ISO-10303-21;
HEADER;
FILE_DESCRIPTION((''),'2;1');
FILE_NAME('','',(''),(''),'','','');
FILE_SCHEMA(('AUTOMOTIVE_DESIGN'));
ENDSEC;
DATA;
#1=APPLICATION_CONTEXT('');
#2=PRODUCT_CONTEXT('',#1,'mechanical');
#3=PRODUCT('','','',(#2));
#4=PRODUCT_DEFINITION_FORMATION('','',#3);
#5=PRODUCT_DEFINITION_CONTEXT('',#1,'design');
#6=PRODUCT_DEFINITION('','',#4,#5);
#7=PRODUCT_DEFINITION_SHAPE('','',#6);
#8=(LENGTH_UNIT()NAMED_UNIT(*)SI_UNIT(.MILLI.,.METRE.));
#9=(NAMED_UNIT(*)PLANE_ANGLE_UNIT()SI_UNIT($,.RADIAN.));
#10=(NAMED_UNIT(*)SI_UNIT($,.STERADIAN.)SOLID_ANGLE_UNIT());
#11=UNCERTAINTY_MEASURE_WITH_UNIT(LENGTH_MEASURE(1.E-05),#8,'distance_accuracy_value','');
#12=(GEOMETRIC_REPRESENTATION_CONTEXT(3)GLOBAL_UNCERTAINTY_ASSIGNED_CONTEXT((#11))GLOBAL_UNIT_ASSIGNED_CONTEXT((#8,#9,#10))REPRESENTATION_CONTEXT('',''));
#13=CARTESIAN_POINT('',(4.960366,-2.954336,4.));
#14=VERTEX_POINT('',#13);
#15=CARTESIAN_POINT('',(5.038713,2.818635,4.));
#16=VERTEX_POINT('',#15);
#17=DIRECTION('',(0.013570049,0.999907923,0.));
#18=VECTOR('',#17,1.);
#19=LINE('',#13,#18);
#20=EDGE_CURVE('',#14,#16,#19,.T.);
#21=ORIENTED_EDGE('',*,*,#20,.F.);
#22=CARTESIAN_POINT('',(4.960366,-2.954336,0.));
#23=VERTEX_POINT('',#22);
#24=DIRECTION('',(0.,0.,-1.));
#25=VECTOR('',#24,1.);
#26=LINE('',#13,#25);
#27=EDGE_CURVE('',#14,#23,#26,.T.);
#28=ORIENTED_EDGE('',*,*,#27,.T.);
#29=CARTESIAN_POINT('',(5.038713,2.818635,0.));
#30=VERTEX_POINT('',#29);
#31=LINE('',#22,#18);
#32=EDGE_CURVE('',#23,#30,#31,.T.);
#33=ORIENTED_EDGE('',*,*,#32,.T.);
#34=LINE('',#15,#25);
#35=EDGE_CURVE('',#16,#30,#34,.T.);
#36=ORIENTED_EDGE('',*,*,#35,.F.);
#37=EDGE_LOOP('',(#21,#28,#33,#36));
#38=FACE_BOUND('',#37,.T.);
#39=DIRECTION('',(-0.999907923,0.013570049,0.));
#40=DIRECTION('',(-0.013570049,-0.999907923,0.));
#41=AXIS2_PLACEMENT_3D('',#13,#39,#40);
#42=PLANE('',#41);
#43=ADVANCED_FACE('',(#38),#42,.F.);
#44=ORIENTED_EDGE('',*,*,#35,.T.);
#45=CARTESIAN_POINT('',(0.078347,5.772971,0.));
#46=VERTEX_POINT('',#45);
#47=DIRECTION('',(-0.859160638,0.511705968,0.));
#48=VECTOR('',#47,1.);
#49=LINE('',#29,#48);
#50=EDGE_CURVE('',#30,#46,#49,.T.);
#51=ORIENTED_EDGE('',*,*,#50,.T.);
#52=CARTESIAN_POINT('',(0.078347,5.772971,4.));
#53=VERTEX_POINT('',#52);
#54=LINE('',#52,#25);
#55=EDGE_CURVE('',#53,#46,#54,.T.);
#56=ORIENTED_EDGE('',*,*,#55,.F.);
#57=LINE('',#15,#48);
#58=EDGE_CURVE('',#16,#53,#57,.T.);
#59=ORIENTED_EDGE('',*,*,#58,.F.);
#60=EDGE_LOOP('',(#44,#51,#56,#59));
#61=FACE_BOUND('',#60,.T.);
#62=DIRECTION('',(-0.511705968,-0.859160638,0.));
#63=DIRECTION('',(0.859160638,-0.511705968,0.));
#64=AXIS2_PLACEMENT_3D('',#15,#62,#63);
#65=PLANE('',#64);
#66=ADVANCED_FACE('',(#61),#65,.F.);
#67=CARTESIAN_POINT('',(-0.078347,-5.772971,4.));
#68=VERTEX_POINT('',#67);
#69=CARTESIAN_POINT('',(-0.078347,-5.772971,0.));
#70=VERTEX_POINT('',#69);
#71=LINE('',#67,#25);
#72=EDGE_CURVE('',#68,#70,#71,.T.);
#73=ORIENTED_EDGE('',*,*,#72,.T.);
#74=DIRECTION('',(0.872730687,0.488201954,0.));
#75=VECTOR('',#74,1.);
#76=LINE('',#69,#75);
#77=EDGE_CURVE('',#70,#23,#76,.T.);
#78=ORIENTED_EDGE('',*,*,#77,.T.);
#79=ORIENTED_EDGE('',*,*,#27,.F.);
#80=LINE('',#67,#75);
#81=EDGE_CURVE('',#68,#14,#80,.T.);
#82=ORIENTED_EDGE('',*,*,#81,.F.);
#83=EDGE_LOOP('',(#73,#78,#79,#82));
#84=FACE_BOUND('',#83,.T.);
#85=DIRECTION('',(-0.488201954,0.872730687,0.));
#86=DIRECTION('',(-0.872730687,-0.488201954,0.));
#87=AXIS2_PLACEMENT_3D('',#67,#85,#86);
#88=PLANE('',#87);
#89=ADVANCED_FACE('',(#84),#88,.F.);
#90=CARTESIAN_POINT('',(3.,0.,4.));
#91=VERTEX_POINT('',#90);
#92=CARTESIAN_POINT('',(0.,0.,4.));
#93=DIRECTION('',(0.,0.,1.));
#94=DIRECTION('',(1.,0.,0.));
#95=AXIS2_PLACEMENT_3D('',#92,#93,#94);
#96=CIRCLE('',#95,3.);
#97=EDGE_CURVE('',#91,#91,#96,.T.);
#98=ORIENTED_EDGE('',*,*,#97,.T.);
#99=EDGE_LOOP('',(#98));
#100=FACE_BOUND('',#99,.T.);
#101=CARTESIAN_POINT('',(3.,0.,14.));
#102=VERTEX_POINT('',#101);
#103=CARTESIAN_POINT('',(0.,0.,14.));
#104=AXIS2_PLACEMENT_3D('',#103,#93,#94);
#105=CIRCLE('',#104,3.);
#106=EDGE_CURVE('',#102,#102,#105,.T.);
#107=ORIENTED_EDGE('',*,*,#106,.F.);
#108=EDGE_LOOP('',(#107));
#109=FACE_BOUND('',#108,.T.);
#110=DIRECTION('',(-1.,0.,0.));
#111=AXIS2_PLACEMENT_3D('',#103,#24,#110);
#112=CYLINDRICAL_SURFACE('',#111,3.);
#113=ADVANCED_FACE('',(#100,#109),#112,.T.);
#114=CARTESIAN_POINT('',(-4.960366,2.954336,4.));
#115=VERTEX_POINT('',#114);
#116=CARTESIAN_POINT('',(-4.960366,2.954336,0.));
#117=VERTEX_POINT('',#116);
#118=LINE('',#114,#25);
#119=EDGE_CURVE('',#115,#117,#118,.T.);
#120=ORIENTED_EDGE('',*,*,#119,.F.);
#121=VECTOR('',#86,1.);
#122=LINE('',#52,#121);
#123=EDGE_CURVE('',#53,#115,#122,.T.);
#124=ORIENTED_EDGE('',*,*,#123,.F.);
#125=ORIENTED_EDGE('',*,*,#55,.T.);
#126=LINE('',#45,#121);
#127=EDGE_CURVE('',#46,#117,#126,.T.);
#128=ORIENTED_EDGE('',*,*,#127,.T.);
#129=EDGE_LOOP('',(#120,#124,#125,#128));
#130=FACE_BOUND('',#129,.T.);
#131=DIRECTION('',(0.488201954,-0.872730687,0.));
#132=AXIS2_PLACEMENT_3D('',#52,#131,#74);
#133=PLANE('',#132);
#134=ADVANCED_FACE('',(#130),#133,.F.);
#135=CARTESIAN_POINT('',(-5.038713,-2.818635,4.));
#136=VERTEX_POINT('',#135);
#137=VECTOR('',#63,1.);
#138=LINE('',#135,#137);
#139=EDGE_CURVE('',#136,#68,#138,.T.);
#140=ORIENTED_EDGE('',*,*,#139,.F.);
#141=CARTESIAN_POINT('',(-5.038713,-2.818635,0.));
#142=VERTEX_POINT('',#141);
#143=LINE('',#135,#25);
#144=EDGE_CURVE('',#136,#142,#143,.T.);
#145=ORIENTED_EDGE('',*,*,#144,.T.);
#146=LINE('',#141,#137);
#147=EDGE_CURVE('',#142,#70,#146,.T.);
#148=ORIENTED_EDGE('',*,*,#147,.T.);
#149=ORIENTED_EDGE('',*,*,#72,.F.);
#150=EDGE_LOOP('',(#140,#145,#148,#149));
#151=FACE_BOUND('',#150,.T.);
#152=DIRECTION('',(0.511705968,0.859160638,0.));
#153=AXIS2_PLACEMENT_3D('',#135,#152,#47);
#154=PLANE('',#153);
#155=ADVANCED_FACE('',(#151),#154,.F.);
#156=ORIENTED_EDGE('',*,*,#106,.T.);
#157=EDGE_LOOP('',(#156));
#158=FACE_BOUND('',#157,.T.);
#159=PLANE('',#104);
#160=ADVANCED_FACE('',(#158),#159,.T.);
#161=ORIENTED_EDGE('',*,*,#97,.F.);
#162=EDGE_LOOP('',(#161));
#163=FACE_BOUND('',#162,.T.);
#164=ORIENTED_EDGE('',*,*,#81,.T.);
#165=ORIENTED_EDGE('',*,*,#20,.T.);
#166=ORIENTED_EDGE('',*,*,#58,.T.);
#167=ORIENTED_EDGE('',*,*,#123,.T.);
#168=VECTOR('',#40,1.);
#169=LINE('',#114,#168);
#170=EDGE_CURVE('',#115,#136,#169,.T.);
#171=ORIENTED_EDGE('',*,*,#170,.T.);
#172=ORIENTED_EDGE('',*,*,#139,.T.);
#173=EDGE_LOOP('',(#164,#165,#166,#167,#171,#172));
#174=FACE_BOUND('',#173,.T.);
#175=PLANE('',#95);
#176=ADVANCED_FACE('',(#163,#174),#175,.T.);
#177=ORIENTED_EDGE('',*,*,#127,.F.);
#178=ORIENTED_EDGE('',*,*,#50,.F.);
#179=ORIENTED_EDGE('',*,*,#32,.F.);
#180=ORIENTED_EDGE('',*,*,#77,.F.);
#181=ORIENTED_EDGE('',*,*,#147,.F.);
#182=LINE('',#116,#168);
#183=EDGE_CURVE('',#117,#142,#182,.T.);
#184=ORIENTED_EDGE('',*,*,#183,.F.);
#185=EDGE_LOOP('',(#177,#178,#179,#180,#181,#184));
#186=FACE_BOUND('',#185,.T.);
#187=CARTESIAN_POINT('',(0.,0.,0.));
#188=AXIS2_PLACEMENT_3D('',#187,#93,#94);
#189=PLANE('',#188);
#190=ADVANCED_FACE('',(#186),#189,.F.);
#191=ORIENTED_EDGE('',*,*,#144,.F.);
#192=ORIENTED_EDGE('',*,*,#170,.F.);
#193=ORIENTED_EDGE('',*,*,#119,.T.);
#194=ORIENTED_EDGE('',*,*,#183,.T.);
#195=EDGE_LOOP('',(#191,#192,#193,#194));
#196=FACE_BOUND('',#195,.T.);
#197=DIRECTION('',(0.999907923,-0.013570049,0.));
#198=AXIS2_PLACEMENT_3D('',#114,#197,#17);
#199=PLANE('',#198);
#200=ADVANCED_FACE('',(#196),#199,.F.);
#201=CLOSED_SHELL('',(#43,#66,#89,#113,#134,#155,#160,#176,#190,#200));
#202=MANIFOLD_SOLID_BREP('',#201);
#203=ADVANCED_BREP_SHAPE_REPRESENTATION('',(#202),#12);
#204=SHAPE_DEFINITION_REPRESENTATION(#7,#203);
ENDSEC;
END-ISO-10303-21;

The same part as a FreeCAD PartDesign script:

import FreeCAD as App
import Part
import Sketcher
from FreeCAD import Vector
Q = App.Units.Quantity

doc = App.newDocument("Part")
body = doc.addObject("PartDesign::Body", "Body")

# Sketch on XY plane
sketch1 = body.newObject("Sketcher::SketchObject", "Sketch")
sketch1.AttachmentSupport = (doc.getObject("XY_Plane"), [""])
sketch1.MapMode = "FlatFace"
sketch1.addGeometry(Part.LineSegment(Vector(5, -3, 0), Vector(5, 3, 0)), False)
sketch1.addGeometry(Part.LineSegment(Vector(5, 3, 0), Vector(0, 6, 0)), False)
sketch1.addGeometry(Part.LineSegment(Vector(0, 6, 0), Vector(-5, 3, 0)), False)
sketch1.addGeometry(Part.LineSegment(Vector(-5, 3, 0), Vector(-5, -3, 0)), False)
sketch1.addGeometry(Part.LineSegment(Vector(-5, -3, 0), Vector(0, -6, 0)), False)
sketch1.addGeometry(Part.LineSegment(Vector(0, -6, 0), Vector(5, -3, 0)), False)
sketch1.addConstraint(Sketcher.Constraint("Coincident", 0, 2, 1, 1))
sketch1.addConstraint(Sketcher.Constraint("Coincident", 1, 2, 2, 1))
sketch1.addConstraint(Sketcher.Constraint("Coincident", 2, 2, 3, 1))
sketch1.addConstraint(Sketcher.Constraint("Coincident", 3, 2, 4, 1))
sketch1.addConstraint(Sketcher.Constraint("Coincident", 4, 2, 5, 1))
sketch1.addConstraint(Sketcher.Constraint("Coincident", 5, 2, 0, 1))
sketch1.addConstraint(Sketcher.Constraint("Symmetric", 0, 2, 3, 2, -1, 1))
sketch1.addConstraint(Sketcher.Constraint("Symmetric", 1, 2, 4, 2, -1, 1))
sketch1.addConstraint(Sketcher.Constraint("Symmetric", 2, 2, 5, 2, -1, 1))
sketch1.addConstraint(Sketcher.Constraint("Equal", 0, 1))
sketch1.addConstraint(Sketcher.Constraint("Equal", 1, 2))
sketch1.addConstraint(Sketcher.Constraint("DistanceY", 0, 2, 2, 2, Q("0.1357 mm")))
sketch1.addConstraint(Sketcher.Constraint("DistanceY", -1, 1, 1, 2, Q("5.772971 mm")))
sketch1.addConstraint(Sketcher.Constraint("DistanceX", 2, 2, 0, 2, Q("9.999079 mm")))
sketch1.addConstraint(Sketcher.Constraint("DistanceY", 3, 2, 2, 2, Q("5.772971 mm")))
pad1 = body.newObject("PartDesign::Pad", "Pad")
pad1.Profile = sketch1
pad1.Length = 4

# Sketch on XY plane
sketch2 = body.newObject("Sketcher::SketchObject", "Sketch001")
sketch2.AttachmentSupport = (doc.getObject("XY_Plane"), [""])
sketch2.MapMode = "FlatFace"
sketch2.AttachmentOffset = App.Placement(Vector(0, 0, 4), App.Rotation())
sketch2.addGeometry(Part.Circle(Vector(0, 0, 0), Vector(0, 0, 1), 3), False)
sketch2.addConstraint(Sketcher.Constraint("Coincident", 0, 3, -1, 1))
sketch2.addConstraint(Sketcher.Constraint("Diameter", 0, Q("6 mm")))
pad2 = body.newObject("PartDesign::Pad", "Pad001")
pad2.Profile = sketch2
pad2.Length = 10

doc.recompute()
